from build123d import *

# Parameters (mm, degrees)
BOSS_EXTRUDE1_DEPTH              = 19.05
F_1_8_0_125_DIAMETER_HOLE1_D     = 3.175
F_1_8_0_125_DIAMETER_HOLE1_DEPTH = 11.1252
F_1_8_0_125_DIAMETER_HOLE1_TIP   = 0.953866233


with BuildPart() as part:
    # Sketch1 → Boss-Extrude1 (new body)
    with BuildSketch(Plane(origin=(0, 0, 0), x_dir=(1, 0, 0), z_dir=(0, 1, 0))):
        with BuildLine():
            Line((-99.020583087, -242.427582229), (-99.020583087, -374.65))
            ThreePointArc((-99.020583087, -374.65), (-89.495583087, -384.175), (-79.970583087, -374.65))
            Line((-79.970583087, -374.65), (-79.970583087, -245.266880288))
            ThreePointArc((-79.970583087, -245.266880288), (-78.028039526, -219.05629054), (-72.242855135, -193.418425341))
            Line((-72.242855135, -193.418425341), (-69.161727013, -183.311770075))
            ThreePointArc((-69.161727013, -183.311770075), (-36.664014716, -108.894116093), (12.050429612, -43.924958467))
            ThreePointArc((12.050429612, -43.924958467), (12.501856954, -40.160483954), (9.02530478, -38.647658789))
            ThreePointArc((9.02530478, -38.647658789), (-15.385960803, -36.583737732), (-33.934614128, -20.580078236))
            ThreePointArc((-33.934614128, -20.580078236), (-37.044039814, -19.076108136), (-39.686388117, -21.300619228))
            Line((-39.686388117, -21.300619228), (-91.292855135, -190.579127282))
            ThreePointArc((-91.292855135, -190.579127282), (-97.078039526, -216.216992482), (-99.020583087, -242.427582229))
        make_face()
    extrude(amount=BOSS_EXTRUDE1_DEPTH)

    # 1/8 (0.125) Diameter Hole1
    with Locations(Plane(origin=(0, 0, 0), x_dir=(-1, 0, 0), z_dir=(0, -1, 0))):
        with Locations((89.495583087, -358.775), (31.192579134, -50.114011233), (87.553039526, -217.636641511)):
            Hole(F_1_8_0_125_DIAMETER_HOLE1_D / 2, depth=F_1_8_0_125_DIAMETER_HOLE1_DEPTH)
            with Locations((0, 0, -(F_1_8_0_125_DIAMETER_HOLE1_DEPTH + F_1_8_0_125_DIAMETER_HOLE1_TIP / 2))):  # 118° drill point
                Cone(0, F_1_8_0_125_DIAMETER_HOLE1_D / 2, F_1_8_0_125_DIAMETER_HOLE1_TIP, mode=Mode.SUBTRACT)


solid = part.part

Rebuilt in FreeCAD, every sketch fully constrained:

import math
import FreeCAD as App
import Part
import Sketcher

V = App.Vector
Q = App.Units.Quantity

doc = App.newDocument("Part")
body = doc.addObject("PartDesign::Body", "Body")

sketch1 = body.newObject("Sketcher::SketchObject", "Sketch")
sketch1.AttachmentSupport = (doc.getObject("XZ_Plane"), [""])
sketch1.MapMode = "FlatFace"
sketch1.addGeometry([
    Part.LineSegment(V(-99, 242.4, 0), V(-99, 374.6, 0)),
    Part.ArcOfCircle(Part.Circle(V(-89.5, 374.6, 0), V(0, 0, 1), 9.5), math.radians(0), math.radians(180)),
    Part.LineSegment(V(-80, 374.6, 0), V(-80, 245.3, 0)),
    Part.ArcOfCircle(Part.Circle(V(97.8, 245.3, 0), V(0, 0, 1), 177.8), math.radians(180), math.radians(196.95)),
    Part.LineSegment(V(-72.2, 193.4, 0), V(-69.2, 183.3, 0)),
    Part.ArcOfCircle(Part.Circle(V(266.9, 285.8, 0), V(0, 0, 1), 351.3), math.radians(-163), math.radians(-137)),
    Part.ArcOfCircle(Part.Circle(V(9.7, 41.7, 0), V(0, 0, 1), 3.2), math.radians(-103), math.radians(43)),
    Part.ArcOfCircle(Part.Circle(V(0, 0, 0), V(0, 0, 1), 39.7), math.radians(77), math.radians(149)),
    Part.ArcOfCircle(Part.Circle(V(-36.6, 22.2, 0), V(0, 0, 1), 3.2), math.radians(-163), math.radians(-31)),
    Part.LineSegment(V(-39.7, 21.3, 0), V(-91.3, 190.6, 0)),
    Part.ArcOfCircle(Part.Circle(V(78.8, 242.4, 0), V(0, 0, 1), 177.8), math.radians(180), math.radians(196.95)),
], False)
sketch1.addConstraint([
    Sketcher.Constraint("Tangent", 0, 2, 1, 2),
    Sketcher.Constraint("Tangent", 1, 1, 2, 1),
    Sketcher.Constraint("Tangent", 2, 2, 3, 1),
    Sketcher.Constraint("Tangent", 3, 2, 4, 1),
    Sketcher.Constraint("Tangent", 4, 2, 5, 1),
    Sketcher.Constraint("Tangent", 5, 2, 6, 2),
    Sketcher.Constraint("Tangent", 6, 1, 7, 1),
    Sketcher.Constraint("Tangent", 7, 2, 8, 2),
    Sketcher.Constraint("Tangent", 8, 1, 9, 1),
    Sketcher.Constraint("Tangent", 9, 2, 10, 2),
    Sketcher.Constraint("Tangent", 10, 1, 0, 1),
    Sketcher.Constraint("Vertical", 0),
    Sketcher.Constraint("Vertical", 2),
    Sketcher.Constraint("Coincident", 7, 3, -1, 1),
    Sketcher.Constraint("Equal", 6, 8),
    Sketcher.Constraint("Equal", 3, 10),
    Sketcher.Constraint("Parallel", 4, 9),
    Sketcher.Constraint("Radius", 3, Q("7 in")),
    Sketcher.Constraint("Radius", 1, Q("0.375 in")),
    Sketcher.Constraint("Radius", 6, Q("0.125 in")),
    Sketcher.Constraint("Radius", 7, Q("1.5625 in")),
    Sketcher.Constraint("DistanceY", -1, 1, 1, 3, Q("14.75 in")),
    Sketcher.Constraint("Radius", 5, Q("351.338123 mm")),
    Sketcher.Constraint("DistanceY", 4, 2, 3, 2, Q("0.3978998 in")),
    Sketcher.Constraint("DistanceY", 2, 2, 2, 1, Q("129.38312 mm")),
    Sketcher.Constraint("DistanceX", 8, 3, 3, 3, Q("134.4788 mm")),
    Sketcher.Constraint("DistanceY", 10, 3, 3, 3, Q("2.839298 mm")),
    Sketcher.Constraint("DistanceY", 6, 3, 4, 2, Q("141.572299 mm")),
])
pad1 = body.newObject("PartDesign::Pad", "Pad")
pad1.Profile = sketch1
pad1.Length = Q("0.75 in")
pad1.Reversed = True

sketch2 = body.newObject("Sketcher::SketchObject", "Sketch001")
sketch2.AttachmentSupport = (doc.getObject("XZ_Plane"), [""])
sketch2.MapMode = "FlatFace"
sketch2.addGeometry([
    Part.Circle(V(-89.5, 358.8, 0), V(0, 0, 1), 1.6),
    Part.Circle(V(-31.2, 50.1, 0), V(0, 0, 1), 1.6),
    Part.Circle(V(-87.6, 217.6, 0), V(0, 0, 1), 1.6),
], False)
sketch2.addConstraint([
    Sketcher.Constraint("Equal", 0, 1),
    Sketcher.Constraint("Equal", 1, 2),
    Sketcher.Constraint("Diameter", 0, Q("0.125 in")),
    Sketcher.Constraint("DistanceY", -1, 1, 0, 3, Q("14.125 in")),
    Sketcher.Constraint("DistanceX", 1, 3, -1, 1, Q("31.192579 mm")),
    Sketcher.Constraint("DistanceY", -1, 1, 1, 3, Q("50.114011 mm")),
    Sketcher.Constraint("DistanceX", 2, 3, -1, 1, Q("87.55304 mm")),
    Sketcher.Constraint("DistanceY", -1, 1, 2, 3, Q("217.636642 mm")),
    Sketcher.Constraint("DistanceX", 0, 3, -1, 1, Q("89.495583 mm")),
])
doc.recompute()
hole = body.newObject("PartDesign::Hole", "Hole")
hole.Profile = sketch2
hole.ThreadType = "None"
hole.Diameter = Q("0.125 in")
hole.DepthType = "Dimension"
hole.Depth = Q("0.438 in")
hole.DrillPoint = "Angled"
hole.DrillPointAngle = 118

doc.recompute()
